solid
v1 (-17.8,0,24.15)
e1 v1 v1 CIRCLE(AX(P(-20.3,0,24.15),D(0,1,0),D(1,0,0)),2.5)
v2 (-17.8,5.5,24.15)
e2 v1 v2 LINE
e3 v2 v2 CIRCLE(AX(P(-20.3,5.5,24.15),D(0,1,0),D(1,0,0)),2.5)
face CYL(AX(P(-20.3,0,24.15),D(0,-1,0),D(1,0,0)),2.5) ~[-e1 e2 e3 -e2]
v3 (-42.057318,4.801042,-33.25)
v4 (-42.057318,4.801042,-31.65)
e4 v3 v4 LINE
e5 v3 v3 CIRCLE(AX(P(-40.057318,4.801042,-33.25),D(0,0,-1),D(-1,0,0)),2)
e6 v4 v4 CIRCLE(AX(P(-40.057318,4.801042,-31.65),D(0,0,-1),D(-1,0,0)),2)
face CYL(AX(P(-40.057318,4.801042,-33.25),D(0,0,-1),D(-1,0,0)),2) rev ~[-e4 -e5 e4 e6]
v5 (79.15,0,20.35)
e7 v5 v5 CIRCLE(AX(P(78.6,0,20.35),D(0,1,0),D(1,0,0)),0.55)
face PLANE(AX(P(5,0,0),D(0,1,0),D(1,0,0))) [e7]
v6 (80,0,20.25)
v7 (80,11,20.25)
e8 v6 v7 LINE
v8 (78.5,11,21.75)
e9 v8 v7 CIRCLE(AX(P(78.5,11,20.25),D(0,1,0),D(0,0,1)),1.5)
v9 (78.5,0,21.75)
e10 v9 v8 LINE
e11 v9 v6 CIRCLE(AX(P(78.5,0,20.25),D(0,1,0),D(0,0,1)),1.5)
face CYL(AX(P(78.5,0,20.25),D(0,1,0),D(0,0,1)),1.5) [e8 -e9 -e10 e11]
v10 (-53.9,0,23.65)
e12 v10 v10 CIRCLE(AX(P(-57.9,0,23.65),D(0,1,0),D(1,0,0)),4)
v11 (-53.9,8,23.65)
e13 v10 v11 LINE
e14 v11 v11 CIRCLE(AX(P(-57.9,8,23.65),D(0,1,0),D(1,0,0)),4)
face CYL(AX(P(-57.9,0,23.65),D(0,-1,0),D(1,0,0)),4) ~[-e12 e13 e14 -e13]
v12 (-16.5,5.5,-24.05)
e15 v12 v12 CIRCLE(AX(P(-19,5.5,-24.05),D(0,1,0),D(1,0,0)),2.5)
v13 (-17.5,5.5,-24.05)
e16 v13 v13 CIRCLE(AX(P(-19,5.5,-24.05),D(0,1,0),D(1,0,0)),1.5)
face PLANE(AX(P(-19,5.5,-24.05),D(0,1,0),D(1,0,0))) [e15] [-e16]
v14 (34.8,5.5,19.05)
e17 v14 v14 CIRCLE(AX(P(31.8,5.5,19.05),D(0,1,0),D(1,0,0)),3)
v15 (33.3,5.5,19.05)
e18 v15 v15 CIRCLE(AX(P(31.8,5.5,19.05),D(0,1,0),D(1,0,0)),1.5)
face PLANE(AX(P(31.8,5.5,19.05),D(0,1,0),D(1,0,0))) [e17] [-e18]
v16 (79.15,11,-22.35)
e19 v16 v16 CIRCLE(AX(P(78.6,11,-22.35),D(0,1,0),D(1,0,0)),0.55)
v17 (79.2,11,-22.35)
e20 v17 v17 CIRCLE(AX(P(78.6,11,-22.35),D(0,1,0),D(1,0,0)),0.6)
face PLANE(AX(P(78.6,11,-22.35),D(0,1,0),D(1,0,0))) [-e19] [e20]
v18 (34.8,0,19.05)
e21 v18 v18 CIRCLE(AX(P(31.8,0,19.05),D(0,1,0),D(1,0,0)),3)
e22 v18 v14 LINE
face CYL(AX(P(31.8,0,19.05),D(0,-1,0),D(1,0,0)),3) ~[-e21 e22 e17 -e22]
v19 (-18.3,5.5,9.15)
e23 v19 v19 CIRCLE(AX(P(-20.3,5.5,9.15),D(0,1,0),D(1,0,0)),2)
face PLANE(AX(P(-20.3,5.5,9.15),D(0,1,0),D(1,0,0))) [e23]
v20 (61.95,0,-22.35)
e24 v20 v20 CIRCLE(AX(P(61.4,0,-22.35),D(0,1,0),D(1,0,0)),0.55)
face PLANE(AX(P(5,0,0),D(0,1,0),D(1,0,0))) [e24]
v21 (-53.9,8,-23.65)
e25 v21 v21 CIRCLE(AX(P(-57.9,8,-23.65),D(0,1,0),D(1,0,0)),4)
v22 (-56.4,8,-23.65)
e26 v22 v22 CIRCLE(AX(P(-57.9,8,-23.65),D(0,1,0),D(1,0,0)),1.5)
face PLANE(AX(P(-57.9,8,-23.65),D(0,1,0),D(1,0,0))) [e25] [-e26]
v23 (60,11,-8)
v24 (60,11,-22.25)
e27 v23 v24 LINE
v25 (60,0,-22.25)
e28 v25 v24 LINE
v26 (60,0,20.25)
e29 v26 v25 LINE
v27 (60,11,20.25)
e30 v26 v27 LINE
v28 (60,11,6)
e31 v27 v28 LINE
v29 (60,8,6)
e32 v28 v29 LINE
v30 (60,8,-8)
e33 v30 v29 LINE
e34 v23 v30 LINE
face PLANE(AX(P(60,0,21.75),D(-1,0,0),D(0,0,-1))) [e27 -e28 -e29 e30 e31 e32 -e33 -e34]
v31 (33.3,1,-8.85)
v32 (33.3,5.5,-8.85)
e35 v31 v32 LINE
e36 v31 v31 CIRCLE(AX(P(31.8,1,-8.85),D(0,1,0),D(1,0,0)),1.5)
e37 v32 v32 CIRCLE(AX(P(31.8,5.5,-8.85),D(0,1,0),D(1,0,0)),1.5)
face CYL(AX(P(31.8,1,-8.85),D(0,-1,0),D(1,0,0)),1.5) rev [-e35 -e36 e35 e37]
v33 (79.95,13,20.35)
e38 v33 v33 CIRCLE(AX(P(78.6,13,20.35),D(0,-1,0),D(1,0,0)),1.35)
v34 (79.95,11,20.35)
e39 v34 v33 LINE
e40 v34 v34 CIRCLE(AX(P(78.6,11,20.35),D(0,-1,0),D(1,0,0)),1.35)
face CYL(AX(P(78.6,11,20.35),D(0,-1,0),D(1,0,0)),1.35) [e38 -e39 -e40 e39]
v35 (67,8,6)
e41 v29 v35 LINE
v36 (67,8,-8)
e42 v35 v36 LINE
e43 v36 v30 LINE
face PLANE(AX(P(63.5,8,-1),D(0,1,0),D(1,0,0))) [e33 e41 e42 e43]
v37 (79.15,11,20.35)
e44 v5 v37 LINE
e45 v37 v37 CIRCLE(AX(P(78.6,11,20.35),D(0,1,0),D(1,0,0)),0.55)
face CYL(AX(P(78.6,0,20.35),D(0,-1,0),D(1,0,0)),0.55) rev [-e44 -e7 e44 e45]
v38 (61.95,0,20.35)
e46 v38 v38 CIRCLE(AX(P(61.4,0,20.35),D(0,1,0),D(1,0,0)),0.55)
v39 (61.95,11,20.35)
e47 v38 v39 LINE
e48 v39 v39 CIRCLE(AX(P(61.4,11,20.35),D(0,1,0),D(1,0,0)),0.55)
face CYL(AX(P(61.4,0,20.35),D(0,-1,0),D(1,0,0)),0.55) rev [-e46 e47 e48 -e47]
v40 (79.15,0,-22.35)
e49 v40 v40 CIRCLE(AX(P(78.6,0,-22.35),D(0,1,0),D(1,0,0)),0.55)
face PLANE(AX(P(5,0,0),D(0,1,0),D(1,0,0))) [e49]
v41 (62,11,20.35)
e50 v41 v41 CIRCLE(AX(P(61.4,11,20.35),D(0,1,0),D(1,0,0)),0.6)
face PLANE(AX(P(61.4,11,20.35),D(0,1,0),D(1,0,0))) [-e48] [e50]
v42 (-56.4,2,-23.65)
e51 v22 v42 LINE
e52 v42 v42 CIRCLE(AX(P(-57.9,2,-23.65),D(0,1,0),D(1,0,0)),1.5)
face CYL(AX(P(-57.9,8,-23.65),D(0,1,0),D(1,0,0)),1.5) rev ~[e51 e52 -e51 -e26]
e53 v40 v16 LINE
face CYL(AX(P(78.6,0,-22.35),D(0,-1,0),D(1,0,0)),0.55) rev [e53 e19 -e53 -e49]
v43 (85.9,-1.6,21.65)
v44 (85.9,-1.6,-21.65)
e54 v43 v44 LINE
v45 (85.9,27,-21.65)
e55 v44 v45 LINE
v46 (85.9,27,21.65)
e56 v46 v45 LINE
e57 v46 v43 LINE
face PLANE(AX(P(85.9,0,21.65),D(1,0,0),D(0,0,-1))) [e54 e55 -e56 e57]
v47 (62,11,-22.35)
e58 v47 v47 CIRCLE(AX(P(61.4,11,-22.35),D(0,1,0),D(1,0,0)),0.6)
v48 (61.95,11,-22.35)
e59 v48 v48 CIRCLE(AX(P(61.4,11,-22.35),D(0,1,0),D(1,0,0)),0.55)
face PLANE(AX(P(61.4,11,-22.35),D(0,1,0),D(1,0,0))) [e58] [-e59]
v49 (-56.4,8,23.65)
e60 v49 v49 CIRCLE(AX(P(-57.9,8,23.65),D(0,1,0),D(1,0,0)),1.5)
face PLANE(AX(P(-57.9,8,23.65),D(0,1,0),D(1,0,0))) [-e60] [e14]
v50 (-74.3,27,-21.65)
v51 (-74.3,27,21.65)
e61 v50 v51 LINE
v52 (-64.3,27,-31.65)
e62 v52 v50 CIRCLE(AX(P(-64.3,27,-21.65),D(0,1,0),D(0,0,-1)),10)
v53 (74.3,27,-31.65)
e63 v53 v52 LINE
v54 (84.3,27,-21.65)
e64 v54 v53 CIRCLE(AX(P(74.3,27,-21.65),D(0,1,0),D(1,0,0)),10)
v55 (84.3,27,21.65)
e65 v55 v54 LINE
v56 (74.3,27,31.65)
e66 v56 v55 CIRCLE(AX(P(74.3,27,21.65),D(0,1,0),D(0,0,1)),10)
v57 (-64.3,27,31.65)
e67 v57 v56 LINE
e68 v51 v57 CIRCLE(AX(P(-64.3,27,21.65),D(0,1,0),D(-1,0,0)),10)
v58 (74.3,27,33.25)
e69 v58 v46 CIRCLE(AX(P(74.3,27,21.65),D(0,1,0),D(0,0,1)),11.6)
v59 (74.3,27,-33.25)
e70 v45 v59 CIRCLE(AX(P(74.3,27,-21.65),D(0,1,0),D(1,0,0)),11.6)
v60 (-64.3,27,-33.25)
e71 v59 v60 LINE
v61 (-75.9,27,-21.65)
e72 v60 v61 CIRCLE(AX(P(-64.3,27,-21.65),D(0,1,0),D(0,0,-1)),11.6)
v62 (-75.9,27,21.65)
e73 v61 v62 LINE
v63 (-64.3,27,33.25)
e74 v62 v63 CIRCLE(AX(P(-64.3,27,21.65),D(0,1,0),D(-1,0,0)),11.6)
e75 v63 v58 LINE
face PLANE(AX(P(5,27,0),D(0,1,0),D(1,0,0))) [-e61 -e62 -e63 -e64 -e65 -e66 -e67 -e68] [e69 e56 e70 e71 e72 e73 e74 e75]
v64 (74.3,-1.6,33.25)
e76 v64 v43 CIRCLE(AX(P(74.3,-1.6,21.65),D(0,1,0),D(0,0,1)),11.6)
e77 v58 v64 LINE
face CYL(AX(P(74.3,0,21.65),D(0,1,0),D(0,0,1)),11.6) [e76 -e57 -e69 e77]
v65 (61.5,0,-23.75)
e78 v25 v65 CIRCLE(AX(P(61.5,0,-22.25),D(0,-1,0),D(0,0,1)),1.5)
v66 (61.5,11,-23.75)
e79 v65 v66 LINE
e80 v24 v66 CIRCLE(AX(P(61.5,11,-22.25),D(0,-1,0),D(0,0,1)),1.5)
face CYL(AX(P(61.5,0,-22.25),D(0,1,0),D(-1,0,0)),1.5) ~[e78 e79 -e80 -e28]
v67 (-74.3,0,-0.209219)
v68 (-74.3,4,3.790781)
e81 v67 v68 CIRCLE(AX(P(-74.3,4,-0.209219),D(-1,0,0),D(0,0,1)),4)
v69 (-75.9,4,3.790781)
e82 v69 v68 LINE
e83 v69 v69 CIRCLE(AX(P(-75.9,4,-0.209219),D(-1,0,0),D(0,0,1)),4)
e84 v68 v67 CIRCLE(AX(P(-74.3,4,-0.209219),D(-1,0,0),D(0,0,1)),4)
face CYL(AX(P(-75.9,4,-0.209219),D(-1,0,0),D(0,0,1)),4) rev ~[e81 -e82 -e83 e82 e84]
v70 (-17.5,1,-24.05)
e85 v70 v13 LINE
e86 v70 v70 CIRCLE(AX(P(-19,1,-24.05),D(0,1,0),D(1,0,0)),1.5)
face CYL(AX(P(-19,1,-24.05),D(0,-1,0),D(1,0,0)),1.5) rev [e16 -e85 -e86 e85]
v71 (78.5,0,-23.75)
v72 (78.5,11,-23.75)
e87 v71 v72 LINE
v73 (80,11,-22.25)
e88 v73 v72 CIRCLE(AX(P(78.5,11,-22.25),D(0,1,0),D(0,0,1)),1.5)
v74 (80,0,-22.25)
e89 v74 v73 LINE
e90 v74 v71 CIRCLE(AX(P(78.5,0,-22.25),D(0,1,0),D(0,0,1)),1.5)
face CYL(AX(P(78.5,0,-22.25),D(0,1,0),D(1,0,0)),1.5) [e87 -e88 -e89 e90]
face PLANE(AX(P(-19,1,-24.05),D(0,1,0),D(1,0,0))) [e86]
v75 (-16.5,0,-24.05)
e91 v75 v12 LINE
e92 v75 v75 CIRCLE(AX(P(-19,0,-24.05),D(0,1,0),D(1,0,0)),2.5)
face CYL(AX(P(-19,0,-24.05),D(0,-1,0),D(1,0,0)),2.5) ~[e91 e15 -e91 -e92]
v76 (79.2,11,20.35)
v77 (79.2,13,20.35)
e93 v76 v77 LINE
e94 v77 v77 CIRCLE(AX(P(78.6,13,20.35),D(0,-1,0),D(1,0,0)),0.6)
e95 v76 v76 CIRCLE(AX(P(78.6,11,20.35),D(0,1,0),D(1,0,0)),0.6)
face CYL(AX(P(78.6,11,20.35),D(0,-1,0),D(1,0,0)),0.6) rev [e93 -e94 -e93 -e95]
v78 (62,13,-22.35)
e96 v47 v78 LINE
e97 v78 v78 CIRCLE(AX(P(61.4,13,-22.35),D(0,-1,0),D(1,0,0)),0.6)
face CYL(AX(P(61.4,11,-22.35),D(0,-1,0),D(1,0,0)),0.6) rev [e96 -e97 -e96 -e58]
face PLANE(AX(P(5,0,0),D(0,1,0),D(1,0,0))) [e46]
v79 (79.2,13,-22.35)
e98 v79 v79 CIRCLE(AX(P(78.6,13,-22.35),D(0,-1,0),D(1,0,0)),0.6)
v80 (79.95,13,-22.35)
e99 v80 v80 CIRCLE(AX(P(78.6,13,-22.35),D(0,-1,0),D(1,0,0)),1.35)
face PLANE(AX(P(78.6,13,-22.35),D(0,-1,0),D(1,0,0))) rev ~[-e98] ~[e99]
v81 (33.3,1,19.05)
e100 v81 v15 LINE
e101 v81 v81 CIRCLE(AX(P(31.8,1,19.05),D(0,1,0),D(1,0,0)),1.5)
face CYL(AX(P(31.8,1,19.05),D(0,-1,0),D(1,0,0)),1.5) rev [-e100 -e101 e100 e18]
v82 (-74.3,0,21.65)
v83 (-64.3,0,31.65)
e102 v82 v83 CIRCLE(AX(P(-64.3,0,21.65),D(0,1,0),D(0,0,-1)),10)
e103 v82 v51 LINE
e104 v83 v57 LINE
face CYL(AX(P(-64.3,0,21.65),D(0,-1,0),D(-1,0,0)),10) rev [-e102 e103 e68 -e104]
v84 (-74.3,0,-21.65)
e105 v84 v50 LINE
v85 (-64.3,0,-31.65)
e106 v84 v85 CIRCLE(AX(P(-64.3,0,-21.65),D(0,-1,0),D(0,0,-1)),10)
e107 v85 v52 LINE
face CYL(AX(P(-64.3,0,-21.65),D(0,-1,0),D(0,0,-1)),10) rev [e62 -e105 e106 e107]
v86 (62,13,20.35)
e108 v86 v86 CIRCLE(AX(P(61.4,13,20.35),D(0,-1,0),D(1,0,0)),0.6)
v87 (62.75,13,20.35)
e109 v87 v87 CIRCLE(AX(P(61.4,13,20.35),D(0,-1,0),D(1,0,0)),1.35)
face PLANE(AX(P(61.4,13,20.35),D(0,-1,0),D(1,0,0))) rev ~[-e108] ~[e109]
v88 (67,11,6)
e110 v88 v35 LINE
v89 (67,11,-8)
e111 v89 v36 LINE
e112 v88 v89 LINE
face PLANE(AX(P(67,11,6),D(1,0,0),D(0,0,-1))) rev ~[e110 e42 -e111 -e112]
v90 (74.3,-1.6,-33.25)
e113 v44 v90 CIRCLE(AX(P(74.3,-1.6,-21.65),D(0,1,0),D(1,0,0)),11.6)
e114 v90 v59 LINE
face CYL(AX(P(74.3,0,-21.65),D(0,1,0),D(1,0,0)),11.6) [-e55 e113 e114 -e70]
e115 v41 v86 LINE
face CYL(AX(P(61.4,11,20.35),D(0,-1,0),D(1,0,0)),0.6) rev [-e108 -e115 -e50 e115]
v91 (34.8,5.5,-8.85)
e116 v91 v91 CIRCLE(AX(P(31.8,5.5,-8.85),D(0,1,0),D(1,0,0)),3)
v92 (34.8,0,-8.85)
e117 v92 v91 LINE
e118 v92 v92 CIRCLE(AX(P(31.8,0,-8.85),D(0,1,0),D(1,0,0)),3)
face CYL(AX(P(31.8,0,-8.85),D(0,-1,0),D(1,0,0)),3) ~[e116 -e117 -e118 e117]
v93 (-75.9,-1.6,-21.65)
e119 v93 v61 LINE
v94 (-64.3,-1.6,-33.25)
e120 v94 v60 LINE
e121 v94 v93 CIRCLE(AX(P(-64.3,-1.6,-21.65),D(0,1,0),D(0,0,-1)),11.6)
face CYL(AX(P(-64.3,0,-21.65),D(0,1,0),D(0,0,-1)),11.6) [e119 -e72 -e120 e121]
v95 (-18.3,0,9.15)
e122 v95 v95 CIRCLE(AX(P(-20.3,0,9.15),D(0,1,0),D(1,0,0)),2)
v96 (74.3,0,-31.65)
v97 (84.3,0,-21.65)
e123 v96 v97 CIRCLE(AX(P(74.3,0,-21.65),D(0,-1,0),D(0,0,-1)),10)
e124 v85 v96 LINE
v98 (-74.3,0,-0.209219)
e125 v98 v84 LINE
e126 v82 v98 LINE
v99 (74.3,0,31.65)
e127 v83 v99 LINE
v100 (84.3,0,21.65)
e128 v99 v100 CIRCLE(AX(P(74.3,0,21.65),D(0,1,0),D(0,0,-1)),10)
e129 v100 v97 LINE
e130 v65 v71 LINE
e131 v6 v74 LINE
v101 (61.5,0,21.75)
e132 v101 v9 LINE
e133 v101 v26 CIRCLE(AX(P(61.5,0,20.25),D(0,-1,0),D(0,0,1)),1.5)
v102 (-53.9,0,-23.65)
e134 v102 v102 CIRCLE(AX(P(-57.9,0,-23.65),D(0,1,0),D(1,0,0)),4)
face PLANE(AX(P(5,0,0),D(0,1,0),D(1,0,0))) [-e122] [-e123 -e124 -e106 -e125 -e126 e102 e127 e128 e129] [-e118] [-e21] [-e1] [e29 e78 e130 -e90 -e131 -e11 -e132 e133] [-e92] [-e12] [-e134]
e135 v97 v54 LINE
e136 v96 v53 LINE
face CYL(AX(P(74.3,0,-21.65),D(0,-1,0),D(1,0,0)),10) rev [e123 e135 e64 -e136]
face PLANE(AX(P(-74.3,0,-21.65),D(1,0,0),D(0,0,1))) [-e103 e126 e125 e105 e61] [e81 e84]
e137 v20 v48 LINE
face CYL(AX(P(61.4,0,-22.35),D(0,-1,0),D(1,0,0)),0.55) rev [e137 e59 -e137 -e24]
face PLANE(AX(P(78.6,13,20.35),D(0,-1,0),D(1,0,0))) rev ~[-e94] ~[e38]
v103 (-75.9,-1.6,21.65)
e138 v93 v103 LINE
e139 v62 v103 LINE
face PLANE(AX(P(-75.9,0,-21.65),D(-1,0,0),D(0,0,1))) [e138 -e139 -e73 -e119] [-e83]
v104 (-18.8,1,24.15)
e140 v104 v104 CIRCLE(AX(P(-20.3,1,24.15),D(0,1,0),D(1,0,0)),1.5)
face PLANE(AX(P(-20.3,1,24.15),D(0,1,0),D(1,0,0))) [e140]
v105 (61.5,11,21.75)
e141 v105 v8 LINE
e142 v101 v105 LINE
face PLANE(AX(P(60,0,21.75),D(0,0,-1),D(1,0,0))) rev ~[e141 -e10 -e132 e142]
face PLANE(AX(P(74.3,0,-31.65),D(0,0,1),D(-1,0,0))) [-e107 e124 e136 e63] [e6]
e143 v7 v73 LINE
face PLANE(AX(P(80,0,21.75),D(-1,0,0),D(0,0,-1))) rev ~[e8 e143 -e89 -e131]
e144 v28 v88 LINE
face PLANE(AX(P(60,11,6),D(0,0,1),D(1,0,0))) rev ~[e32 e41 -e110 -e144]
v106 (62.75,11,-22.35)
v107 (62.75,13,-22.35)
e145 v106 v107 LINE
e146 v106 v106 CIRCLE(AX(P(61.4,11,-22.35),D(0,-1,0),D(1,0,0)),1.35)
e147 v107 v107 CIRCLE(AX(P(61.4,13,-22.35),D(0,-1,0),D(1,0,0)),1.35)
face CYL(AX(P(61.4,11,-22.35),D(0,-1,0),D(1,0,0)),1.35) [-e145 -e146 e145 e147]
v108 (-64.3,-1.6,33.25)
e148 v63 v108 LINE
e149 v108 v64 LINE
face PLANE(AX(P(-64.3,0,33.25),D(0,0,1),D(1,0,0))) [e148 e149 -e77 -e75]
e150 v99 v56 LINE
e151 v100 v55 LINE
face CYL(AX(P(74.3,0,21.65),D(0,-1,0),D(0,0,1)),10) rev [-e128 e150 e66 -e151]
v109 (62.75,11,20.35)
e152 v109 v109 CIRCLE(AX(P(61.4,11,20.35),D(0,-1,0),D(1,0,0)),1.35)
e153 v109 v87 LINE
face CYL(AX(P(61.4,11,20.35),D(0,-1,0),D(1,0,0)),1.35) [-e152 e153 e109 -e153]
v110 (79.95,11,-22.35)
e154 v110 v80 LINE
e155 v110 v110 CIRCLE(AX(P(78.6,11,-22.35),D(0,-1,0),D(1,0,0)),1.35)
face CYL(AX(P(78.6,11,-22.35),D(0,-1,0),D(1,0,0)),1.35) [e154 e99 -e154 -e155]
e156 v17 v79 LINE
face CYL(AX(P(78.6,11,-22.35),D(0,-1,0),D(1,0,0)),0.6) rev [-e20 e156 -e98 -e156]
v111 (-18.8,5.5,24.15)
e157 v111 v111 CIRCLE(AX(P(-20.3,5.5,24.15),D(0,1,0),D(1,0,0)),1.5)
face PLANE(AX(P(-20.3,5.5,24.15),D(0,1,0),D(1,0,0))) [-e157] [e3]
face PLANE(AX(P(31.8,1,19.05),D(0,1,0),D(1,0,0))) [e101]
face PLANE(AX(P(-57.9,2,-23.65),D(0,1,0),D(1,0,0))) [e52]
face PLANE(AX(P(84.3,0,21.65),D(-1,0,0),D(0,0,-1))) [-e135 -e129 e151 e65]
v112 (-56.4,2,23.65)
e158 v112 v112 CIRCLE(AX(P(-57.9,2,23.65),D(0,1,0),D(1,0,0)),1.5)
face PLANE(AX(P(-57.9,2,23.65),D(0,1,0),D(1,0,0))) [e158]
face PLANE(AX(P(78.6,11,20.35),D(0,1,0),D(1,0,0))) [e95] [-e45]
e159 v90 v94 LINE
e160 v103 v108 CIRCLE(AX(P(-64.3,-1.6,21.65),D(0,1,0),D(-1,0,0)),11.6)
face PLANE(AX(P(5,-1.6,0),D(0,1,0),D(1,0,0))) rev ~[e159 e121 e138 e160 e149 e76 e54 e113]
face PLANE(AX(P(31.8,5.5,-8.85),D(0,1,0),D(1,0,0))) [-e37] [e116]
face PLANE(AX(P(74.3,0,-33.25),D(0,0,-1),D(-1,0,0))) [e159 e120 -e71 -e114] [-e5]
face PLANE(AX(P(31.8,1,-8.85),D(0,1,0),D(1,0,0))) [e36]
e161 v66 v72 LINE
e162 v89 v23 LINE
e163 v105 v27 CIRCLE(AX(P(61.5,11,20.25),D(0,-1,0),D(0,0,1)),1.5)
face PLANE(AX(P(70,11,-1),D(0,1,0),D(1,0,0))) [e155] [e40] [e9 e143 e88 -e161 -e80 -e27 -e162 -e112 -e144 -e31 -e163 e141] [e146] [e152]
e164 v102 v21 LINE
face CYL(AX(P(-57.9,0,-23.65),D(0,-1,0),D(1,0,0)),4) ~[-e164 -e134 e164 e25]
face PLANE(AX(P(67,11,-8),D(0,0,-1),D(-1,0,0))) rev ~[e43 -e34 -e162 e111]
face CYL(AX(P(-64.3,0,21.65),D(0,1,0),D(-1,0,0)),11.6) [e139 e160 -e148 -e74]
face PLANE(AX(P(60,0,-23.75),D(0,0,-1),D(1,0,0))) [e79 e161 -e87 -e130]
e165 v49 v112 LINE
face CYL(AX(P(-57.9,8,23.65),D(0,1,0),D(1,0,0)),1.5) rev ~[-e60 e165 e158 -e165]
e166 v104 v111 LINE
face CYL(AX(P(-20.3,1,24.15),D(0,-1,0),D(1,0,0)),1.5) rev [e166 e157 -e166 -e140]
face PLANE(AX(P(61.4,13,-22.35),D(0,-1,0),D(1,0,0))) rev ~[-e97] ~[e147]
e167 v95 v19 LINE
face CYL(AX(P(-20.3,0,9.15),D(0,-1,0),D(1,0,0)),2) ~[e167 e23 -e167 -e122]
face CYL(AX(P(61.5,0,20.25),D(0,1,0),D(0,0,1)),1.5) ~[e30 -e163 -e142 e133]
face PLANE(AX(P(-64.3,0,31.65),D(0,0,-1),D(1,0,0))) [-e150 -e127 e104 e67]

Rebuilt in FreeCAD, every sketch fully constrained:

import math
import FreeCAD as App
import Part
import Sketcher
Q = App.Units.Quantity


def edges_at(feature, points):
    """Names of the edges that pass closest to the given points."""
    edges = feature.Shape.Edges
    near = lambda p: min(range(len(edges)), key=lambda i: edges[i].distToShape(Part.Vertex(*p))[0])
    return sorted({f"Edge{near(p) + 1}" for p in points})


def add_polygon(sketch, points):
    """Adds a closed chain of lines whose ends are joined by coincident constraints."""
    first, n = sketch.GeometryCount, len(points)
    for a, b in zip(points, points[1:] + points[:1]):
        sketch.addGeometry(Part.LineSegment(App.Vector(*a, 0), App.Vector(*b, 0)), False)
    for i in range(n):
        sketch.addConstraint(Sketcher.Constraint("Coincident", first + i, 2, first + (i + 1) % n, 1))

doc = App.newDocument("Part")
body = doc.addObject("PartDesign::Body", "Body")

# Sketch on XZ plane
sketch1 = doc.addObject("Sketcher::SketchObject", "Sketch")
body.addObject(sketch1)
sketch1.AttachmentSupport = (doc.XZ_Plane, [""])
sketch1.MapMode = "FlatFace"
add_polygon(sketch1, [(60, -23.8), (60, 21.8), (80, 21.8), (80, -23.8)])  # lines 0-3
sketch1.addGeometry(Part.Circle(App.Vector(61.4, 20.4, 0), App.Vector(0, 0, 1), 0.6), False)  # 4
sketch1.addGeometry(Part.Circle(App.Vector(78.6, 20.4, 0), App.Vector(0, 0, 1), 0.6), False)  # 5
sketch1.addGeometry(Part.Circle(App.Vector(61.4, -22.4, 0), App.Vector(0, 0, 1), 0.6), False)  # 6
sketch1.addGeometry(Part.Circle(App.Vector(78.6, -22.4, 0), App.Vector(0, 0, 1), 0.6), False)  # 7
sketch1.addConstraint(Sketcher.Constraint("Vertical", 0))
sketch1.addConstraint(Sketcher.Constraint("Horizontal", 1))
sketch1.addConstraint(Sketcher.Constraint("Vertical", 2))
sketch1.addConstraint(Sketcher.Constraint("Horizontal", 3))
sketch1.addConstraint(Sketcher.Constraint("Equal", 4, 5))
sketch1.addConstraint(Sketcher.Constraint("Equal", 5, 6))
sketch1.addConstraint(Sketcher.Constraint("Equal", 6, 7))
sketch1.addConstraint(Sketcher.Constraint("Horizontal", 4, 3, 5, 3))
sketch1.addConstraint(Sketcher.Constraint("Horizontal", 6, 3, 7, 3))
sketch1.addConstraint(Sketcher.Constraint("Vertical", 4, 3, 6, 3))
sketch1.addConstraint(Sketcher.Constraint("Vertical", 5, 3, 7, 3))
sketch1.addConstraint(Sketcher.Constraint("Diameter", 4, Q("1.1 mm")))
sketch1.addConstraint(Sketcher.Constraint("DistanceX", 1, 1, 1, 2, Q("20 mm")))
sketch1.addConstraint(Sketcher.Constraint("DistanceY", 0, 1, 0, 2, Q("45.5 mm")))
sketch1.addConstraint(Sketcher.Constraint("DistanceX", -1, 1, 0, 2, Q("60 mm")))
sketch1.addConstraint(Sketcher.Constraint("DistanceX", -1, 1, 4, 3, Q("61.4 mm")))
sketch1.addConstraint(Sketcher.Constraint("DistanceX", -1, 1, 5, 3, Q("78.6 mm")))
sketch1.addConstraint(Sketcher.Constraint("DistanceY", 6, 3, 4, 3, Q("42.7 mm")))
sketch1.addConstraint(Sketcher.Constraint("DistanceY", 4, 3, 0, 2, Q("1.4 mm")))
sketch1.addConstraint(Sketcher.Constraint("DistanceY", -1, 1, 4, 3, Q("20.35 mm")))
pad1 = doc.addObject("PartDesign::Pad", "Pad")
body.addObject(pad1)
pad1.Profile = sketch1
pad1.Length = 11
pad1.Reversed = True

# Sketch on XZ plane
sketch2 = doc.addObject("Sketcher::SketchObject", "Sketch001")
body.addObject(sketch2)
sketch2.AttachmentSupport = (doc.XZ_Plane, [""])
sketch2.MapMode = "FlatFace"
sketch2.AttachmentOffset = App.Placement(App.Vector(0, 0, -11), App.Rotation())
add_polygon(sketch2, [(60, 6), (67, 6), (67, -8), (60, -8)])  # lines 0-3
sketch2.addConstraint(Sketcher.Constraint("Horizontal", 0))
sketch2.addConstraint(Sketcher.Constraint("Vertical", 1))
sketch2.addConstraint(Sketcher.Constraint("Horizontal", 2))
sketch2.addConstraint(Sketcher.Constraint("Vertical", 3))
sketch2.addConstraint(Sketcher.Constraint("DistanceX", 0, 1, 0, 2, Q("7 mm")))
sketch2.addConstraint(Sketcher.Constraint("DistanceY", 1, 2, 1, 1, Q("14 mm")))
sketch2.addConstraint(Sketcher.Constraint("DistanceX", -1, 1, 0, 2, Q("67 mm")))
sketch2.addConstraint(Sketcher.Constraint("DistanceY", -1, 1, 0, 2, Q("6 mm")))
pocket1 = doc.addObject("PartDesign::Pocket", "Pocket")
body.addObject(pocket1)
pocket1.Profile = sketch2
pocket1.Length = 3
pocket1.Reversed = True

# Sketch on XZ plane
sketch3 = doc.addObject("Sketcher::SketchObject", "Sketch002")
body.addObject(sketch3)
sketch3.AttachmentSupport = (doc.XZ_Plane, [""])
sketch3.MapMode = "FlatFace"
sketch3.AttachmentOffset = App.Placement(App.Vector(0, 0, -11), App.Rotation())
sketch3.addGeometry(Part.Circle(App.Vector(61.4, 20.4, 0), App.Vector(0, 0, 1), 1.4), False)
sketch3.addGeometry(Part.Circle(App.Vector(78.6, 20.4, 0), App.Vector(0, 0, 1), 1.4), False)
sketch3.addGeometry(Part.Circle(App.Vector(61.4, -22.4, 0), App.Vector(0, 0, 1), 1.4), False)
sketch3.addGeometry(Part.Circle(App.Vector(78.6, -22.4, 0), App.Vector(0, 0, 1), 1.4), False)
sketch3.addConstraint(Sketcher.Constraint("Equal", 0, 1))
sketch3.addConstraint(Sketcher.Constraint("Equal", 1, 2))
sketch3.addConstraint(Sketcher.Constraint("Equal", 2, 3))
sketch3.addConstraint(Sketcher.Constraint("Horizontal", 0, 3, 1, 3))
sketch3.addConstraint(Sketcher.Constraint("Horizontal", 2, 3, 3, 3))
sketch3.addConstraint(Sketcher.Constraint("Vertical", 0, 3, 2, 3))
sketch3.addConstraint(Sketcher.Constraint("Vertical", 1, 3, 3, 3))
sketch3.addConstraint(Sketcher.Constraint("Diameter", 0, Q("2.7 mm")))
sketch3.addConstraint(Sketcher.Constraint("DistanceX", -1, 1, 0, 3, Q("61.4 mm")))
sketch3.addConstraint(Sketcher.Constraint("DistanceX", -1, 1, 1, 3, Q("78.6 mm")))
sketch3.addConstraint(Sketcher.Constraint("DistanceY", 2, 3, 0, 3, Q("42.7 mm")))
sketch3.addConstraint(Sketcher.Constraint("DistanceY", -1, 1, 0, 3, Q("20.35 mm")))
pad2 = doc.addObject("PartDesign::Pad", "Pad001")
body.addObject(pad2)
pad2.Profile = sketch3
pad2.Length = 2
pad2.Reversed = True

# Sketch on XZ plane
sketch4 = doc.addObject("Sketcher::SketchObject", "Sketch003")
body.addObject(sketch4)
sketch4.AttachmentSupport = (doc.XZ_Plane, [""])
sketch4.MapMode = "FlatFace"
add_polygon(sketch4, [(-74, -32), (-74, 32), (84, 32), (84, -32)])  # lines 0-3
sketch4.addConstraint(Sketcher.Constraint("Vertical", 0))
sketch4.addConstraint(Sketcher.Constraint("Horizontal", 1))
sketch4.addConstraint(Sketcher.Constraint("Vertical", 2))
sketch4.addConstraint(Sketcher.Constraint("Horizontal", 3))
sketch4.addConstraint(Sketcher.Constraint("DistanceX", 1, 1, 1, 2, Q("158.6 mm")))
sketch4.addConstraint(Sketcher.Constraint("DistanceY", 0, 1, 0, 2, Q("63.3 mm")))
sketch4.addConstraint(Sketcher.Constraint("DistanceX", 0, 2, -1, 1, Q("74.3 mm")))
sketch4.addConstraint(Sketcher.Constraint("DistanceY", -1, 1, 0, 2, Q("31.65 mm")))
pad3 = doc.addObject("PartDesign::Pad", "Pad002")
body.addObject(pad3)
pad3.Profile = sketch4
pad3.Length = 1.6
doc.recompute()

fillet = doc.addObject("PartDesign::Fillet", "Fillet")
body.addObject(fillet)
fillet.Base = (pad3, edges_at(pad3, [
    (-74.3, -0.8, -31.65),
    (84.3, -0.8, -31.65),
    (84.3, -0.8, 31.65),
    (-74.3, -0.8, 31.65),
]))
fillet.Radius = 10

# Sketch on XZ plane
sketch5 = doc.addObject("Sketcher::SketchObject", "Sketch004")
body.addObject(sketch5)
sketch5.AttachmentSupport = (doc.XZ_Plane, [""])
sketch5.MapMode = "FlatFace"
sketch5.addGeometry(Part.Circle(App.Vector(-19, -24.1, 0), App.Vector(0, 0, 1), 2.5), False)
sketch5.addGeometry(Part.Circle(App.Vector(31.8, -8.8, 0), App.Vector(0, 0, 1), 3), False)
sketch5.addGeometry(Part.Circle(App.Vector(31.8, 19.1, 0), App.Vector(0, 0, 1), 3), False)
sketch5.addGeometry(Part.Circle(App.Vector(-20.3, 24.1, 0), App.Vector(0, 0, 1), 2.5), False)
sketch5.addGeometry(Part.Circle(App.Vector(-20.3, 9.2, 0), App.Vector(0, 0, 1), 2), False)
sketch5.addConstraint(Sketcher.Constraint("Equal", 1, 2))
sketch5.addConstraint(Sketcher.Constraint("Equal", 0, 3))
sketch5.addConstraint(Sketcher.Constraint("Vertical", 1, 3, 2, 3))
sketch5.addConstraint(Sketcher.Constraint("Vertical", 3, 3, 4, 3))
sketch5.addConstraint(Sketcher.Constraint("Diameter", 0, Q("5 mm")))
sketch5.addConstraint(Sketcher.Constraint("Diameter", 1, Q("6 mm")))
sketch5.addConstraint(Sketcher.Constraint("Diameter", 4, Q("4 mm")))
sketch5.addConstraint(Sketcher.Constraint("DistanceX", 0, 3, -1, 1, Q("19 mm")))
sketch5.addConstraint(Sketcher.Constraint("DistanceY", 1, 3, 3, 3, Q("33 mm")))
sketch5.addConstraint(Sketcher.Constraint("DistanceY", 4, 3, 3, 3, Q("15 mm")))
sketch5.addConstraint(Sketcher.Constraint("DistanceX", -1, 1, 1, 3, Q("31.8 mm")))
sketch5.addConstraint(Sketcher.Constraint("DistanceX", 3, 3, -1, 1, Q("20.3 mm")))
sketch5.addConstraint(Sketcher.Constraint("DistanceY", 0, 3, 1, 3, Q("15.2 mm")))
sketch5.addConstraint(Sketcher.Constraint("DistanceY", 1, 3, 2, 3, Q("27.9 mm")))
sketch5.addConstraint(Sketcher.Constraint("DistanceY", 0, 3, -1, 1, Q("24.05 mm")))
pad4 = doc.addObject("PartDesign::Pad", "Pad003")
body.addObject(pad4)
pad4.Profile = sketch5
pad4.Length = 5.5
pad4.Reversed = True

# Sketch on XZ plane
sketch6 = doc.addObject("Sketcher::SketchObject", "Sketch005")
body.addObject(sketch6)
sketch6.AttachmentSupport = (doc.XZ_Plane, [""])
sketch6.MapMode = "FlatFace"
sketch6.AttachmentOffset = App.Placement(App.Vector(0, 0, -1), App.Rotation())
sketch6.addGeometry(Part.Circle(App.Vector(-19, -24.1, 0), App.Vector(0, 0, 1), 1.5), False)
sketch6.addGeometry(Part.Circle(App.Vector(31.8, -8.8, 0), App.Vector(0, 0, 1), 1.5), False)
sketch6.addGeometry(Part.Circle(App.Vector(31.8, 19.1, 0), App.Vector(0, 0, 1), 1.5), False)
sketch6.addGeometry(Part.Circle(App.Vector(-20.3, 24.1, 0), App.Vector(0, 0, 1), 1.5), False)
sketch6.addConstraint(Sketcher.Constraint("Equal", 0, 1))
sketch6.addConstraint(Sketcher.Constraint("Equal", 1, 2))
sketch6.addConstraint(Sketcher.Constraint("Equal", 2, 3))
sketch6.addConstraint(Sketcher.Constraint("Vertical", 1, 3, 2, 3))
sketch6.addConstraint(Sketcher.Constraint("Diameter", 0, Q("3 mm")))
sketch6.addConstraint(Sketcher.Constraint("DistanceX", 0, 3, -1, 1, Q("19 mm")))
sketch6.addConstraint(Sketcher.Constraint("DistanceY", 1, 3, 3, 3, Q("33 mm")))
sketch6.addConstraint(Sketcher.Constraint("DistanceX", -1, 1, 1, 3, Q("31.8 mm")))
sketch6.addConstraint(Sketcher.Constraint("DistanceX", 3, 3, -1, 1, Q("20.3 mm")))
sketch6.addConstraint(Sketcher.Constraint("DistanceY", 0, 3, 1, 3, Q("15.2 mm")))
sketch6.addConstraint(Sketcher.Constraint("DistanceY", 1, 3, 2, 3, Q("27.9 mm")))
sketch6.addConstraint(Sketcher.Constraint("DistanceY", 0, 3, -1, 1, Q("24.05 mm")))
pocket2 = doc.addObject("PartDesign::Pocket", "Pocket001")
body.addObject(pocket2)
pocket2.Profile = sketch6
pocket2.Length = 4.5

# Sketch on XZ plane
sketch7 = doc.addObject("Sketcher::SketchObject", "Sketch006")
body.addObject(sketch7)
sketch7.AttachmentSupport = (doc.XZ_Plane, [""])
sketch7.MapMode = "FlatFace"
sketch7.addGeometry(Part.LineSegment(App.Vector(86, 22, 0), App.Vector(86, -22, 0)), False)
sketch7.addGeometry(Part.ArcOfCircle(Part.Circle(App.Vector(74, -22, 0), App.Vector(0, 0, 1), 12), math.radians(-90), math.radians(0)), False)
sketch7.addGeometry(Part.LineSegment(App.Vector(74, -33, 0), App.Vector(-64, -33, 0)), False)
sketch7.addGeometry(Part.ArcOfCircle(Part.Circle(App.Vector(-64, -22, 0), App.Vector(0, 0, 1), 12), math.radians(180), math.radians(270)), False)
sketch7.addGeometry(Part.LineSegment(App.Vector(-76, -22, 0), App.Vector(-76, 22, 0)), False)
sketch7.addGeometry(Part.ArcOfCircle(Part.Circle(App.Vector(-64, 22, 0), App.Vector(0, 0, 1), 12), math.radians(90), math.radians(180)), False)
sketch7.addGeometry(Part.LineSegment(App.Vector(-64, 33, 0), App.Vector(74, 33, 0)), False)
sketch7.addGeometry(Part.ArcOfCircle(Part.Circle(App.Vector(74, 22, 0), App.Vector(0, 0, 1), 12), math.radians(0), math.radians(90)), False)
sketch7.addGeometry(Part.LineSegment(App.Vector(84, -22, 0), App.Vector(84, 22, 0)), False)
sketch7.addGeometry(Part.ArcOfCircle(Part.Circle(App.Vector(74, 22, 0), App.Vector(0, 0, 1), 10), math.radians(0), math.radians(90)), False)
sketch7.addGeometry(Part.LineSegment(App.Vector(74, 32, 0), App.Vector(-64, 32, 0)), False)
sketch7.addGeometry(Part.ArcOfCircle(Part.Circle(App.Vector(-64, 22, 0), App.Vector(0, 0, 1), 10), math.radians(90), math.radians(180)), False)
sketch7.addGeometry(Part.LineSegment(App.Vector(-74, 22, 0), App.Vector(-74, -22, 0)), False)
sketch7.addGeometry(Part.ArcOfCircle(Part.Circle(App.Vector(-64, -22, 0), App.Vector(0, 0, 1), 10), math.radians(180), math.radians(270)), False)
sketch7.addGeometry(Part.LineSegment(App.Vector(-64, -32, 0), App.Vector(74, -32, 0)), False)
sketch7.addGeometry(Part.ArcOfCircle(Part.Circle(App.Vector(74, -22, 0), App.Vector(0, 0, 1), 10), math.radians(-90), math.radians(0)), False)
sketch7.addConstraint(Sketcher.Constraint("Tangent", 0, 2, 1, 2))
sketch7.addConstraint(Sketcher.Constraint("Tangent", 1, 1, 2, 1))
sketch7.addConstraint(Sketcher.Constraint("Tangent", 2, 2, 3, 2))
sketch7.addConstraint(Sketcher.Constraint("Tangent", 3, 1, 4, 1))
sketch7.addConstraint(Sketcher.Constraint("Tangent", 4, 2, 5, 2))
sketch7.addConstraint(Sketcher.Constraint("Tangent", 5, 1, 6, 1))
sketch7.addConstraint(Sketcher.Constraint("Tangent", 6, 2, 7, 2))
sketch7.addConstraint(Sketcher.Constraint("Tangent", 7, 1, 0, 1))
sketch7.addConstraint(Sketcher.Constraint("Tangent", 8, 2, 9, 1))
sketch7.addConstraint(Sketcher.Constraint("Tangent", 9, 2, 10, 1))
sketch7.addConstraint(Sketcher.Constraint("Tangent", 10, 2, 11, 1))
sketch7.addConstraint(Sketcher.Constraint("Tangent", 11, 2, 12, 1))
sketch7.addConstraint(Sketcher.Constraint("Tangent", 12, 2, 13, 1))
sketch7.addConstraint(Sketcher.Constraint("Tangent", 13, 2, 14, 1))
sketch7.addConstraint(Sketcher.Constraint("Tangent", 14, 2, 15, 1))
sketch7.addConstraint(Sketcher.Constraint("Tangent", 15, 2, 8, 1))
sketch7.addConstraint(Sketcher.Constraint("Vertical", 0))
sketch7.addConstraint(Sketcher.Constraint("Horizontal", 2))
sketch7.addConstraint(Sketcher.Constraint("Vertical", 4))
sketch7.addConstraint(Sketcher.Constraint("Horizontal", 6))
sketch7.addConstraint(Sketcher.Constraint("Vertical", 8))
sketch7.addConstraint(Sketcher.Constraint("Horizontal", 10))
sketch7.addConstraint(Sketcher.Constraint("Vertical", 12))
sketch7.addConstraint(Sketcher.Constraint("Horizontal", 14))
sketch7.addConstraint(Sketcher.Constraint("Coincident", 9, 3, 7, 3))
sketch7.addConstraint(Sketcher.Constraint("Coincident", 11, 3, 5, 3))
sketch7.addConstraint(Sketcher.Constraint("Coincident", 13, 3, 3, 3))
sketch7.addConstraint(Sketcher.Constraint("Equal", 1, 3))
sketch7.addConstraint(Sketcher.Constraint("Equal", 3, 5))
sketch7.addConstraint(Sketcher.Constraint("Equal", 5, 7))
sketch7.addConstraint(Sketcher.Constraint("Equal", 13, 15))
sketch7.addConstraint(Sketcher.Constraint("Radius", 9, Q("10 mm")))
sketch7.addConstraint(Sketcher.Constraint("Radius", 1, Q("11.6 mm")))
sketch7.addConstraint(Sketcher.Constraint("DistanceX", 2, 2, 2, 1, Q("138.6 mm")))
sketch7.addConstraint(Sketcher.Constraint("DistanceY", 0, 2, 0, 1, Q("43.3 mm")))
sketch7.addConstraint(Sketcher.Constraint("DistanceX", -1, 1, 1, 3, Q("74.3 mm")))
sketch7.addConstraint(Sketcher.Constraint("DistanceY", 1, 3, -1, 1, Q("21.65 mm")))
pad5 = doc.addObject("PartDesign::Pad", "Pad004")
body.addObject(pad5)
pad5.Profile = sketch7
pad5.Type = "TwoLengths"
pad5.Length = 27
pad5.Length2 = 1.6
pad5.Reversed = True

# Sketch on YZ plane
sketch8 = doc.addObject("Sketcher::SketchObject", "Sketch007")
body.addObject(sketch8)
sketch8.AttachmentSupport = (doc.YZ_Plane, [""])
sketch8.MapMode = "FlatFace"
sketch8.AttachmentOffset = App.Placement(App.Vector(0, 0, -75.9), App.Rotation())
sketch8.addGeometry(Part.Circle(App.Vector(4, -0.2, 0), App.Vector(0, 0, 1), 4), False)
sketch8.addConstraint(Sketcher.Constraint("Diameter", 0, Q("8 mm")))
sketch8.addConstraint(Sketcher.Constraint("DistanceX", -1, 1, 0, 3, Q("4 mm")))
sketch8.addConstraint(Sketcher.Constraint("DistanceY", 0, 3, -1, 1, Q("0.209219 mm")))
pocket3 = doc.addObject("PartDesign::Pocket", "Pocket002")
body.addObject(pocket3)
pocket3.Profile = sketch8
pocket3.Length = 1.6
pocket3.Reversed = True

# Sketch on XZ plane
sketch9 = doc.addObject("Sketcher::SketchObject", "Sketch008")
body.addObject(sketch9)
sketch9.AttachmentSupport = (doc.XZ_Plane, [""])
sketch9.MapMode = "FlatFace"
sketch9.addGeometry(Part.Circle(App.Vector(-57.9, -23.6, 0), App.Vector(0, 0, 1), 4), False)
sketch9.addGeometry(Part.Circle(App.Vector(-57.9, 23.6, 0), App.Vector(0, 0, 1), 4), False)
sketch9.addConstraint(Sketcher.Constraint("Equal", 0, 1))
sketch9.addConstraint(Sketcher.Constraint("Symmetric", 0, 3, 1, 3, -1))
sketch9.addConstraint(Sketcher.Constraint("Diameter", 0, Q("8 mm")))
sketch9.addConstraint(Sketcher.Constraint("DistanceX", 0, 3, -1, 1, Q("57.9 mm")))
sketch9.addConstraint(Sketcher.Constraint("DistanceY", 0, 3, 1, 3, Q("47.3 mm")))
pad6 = doc.addObject("PartDesign::Pad", "Pad005")
body.addObject(pad6)
pad6.Profile = sketch9
pad6.Length = 8
pad6.Reversed = True

# Sketch on XZ plane
sketch10 = doc.addObject("Sketcher::SketchObject", "Sketch009")
body.addObject(sketch10)
sketch10.AttachmentSupport = (doc.XZ_Plane, [""])
sketch10.MapMode = "FlatFace"
sketch10.AttachmentOffset = App.Placement(App.Vector(0, 0, -8), App.Rotation())
sketch10.addGeometry(Part.Circle(App.Vector(-57.9, -23.6, 0), App.Vector(0, 0, 1), 1.5), False)
sketch10.addGeometry(Part.Circle(App.Vector(-57.9, 23.6, 0), App.Vector(0, 0, 1), 1.5), False)
sketch10.addConstraint(Sketcher.Constraint("Equal", 0, 1))
sketch10.addConstraint(Sketcher.Constraint("Symmetric", 0, 3, 1, 3, -1))
sketch10.addConstraint(Sketcher.Constraint("Diameter", 0, Q("3 mm")))
sketch10.addConstraint(Sketcher.Constraint("DistanceX", 0, 3, -1, 1, Q("57.9 mm")))
sketch10.addConstraint(Sketcher.Constraint("DistanceY", 0, 3, 1, 3, Q("47.3 mm")))
pocket4 = doc.addObject("PartDesign::Pocket", "Pocket003")
body.addObject(pocket4)
pocket4.Profile = sketch10
pocket4.Length = 6
pocket4.Reversed = True

# Sketch on XY plane
sketch11 = doc.addObject("Sketcher::SketchObject", "Sketch010")
body.addObject(sketch11)
sketch11.AttachmentSupport = (doc.XY_Plane, [""])
sketch11.MapMode = "FlatFace"
sketch11.AttachmentOffset = App.Placement(App.Vector(0, 0, -33.25), App.Rotation())
sketch11.addGeometry(Part.Circle(App.Vector(-40.1, 4.8, 0), App.Vector(0, 0, 1), 2), False)
sketch11.addConstraint(Sketcher.Constraint("Diameter", 0, Q("4 mm")))
sketch11.addConstraint(Sketcher.Constraint("DistanceX", 0, 3, -1, 1, Q("40.057318 mm")))
sketch11.addConstraint(Sketcher.Constraint("DistanceY", -1, 1, 0, 3, Q("4.801042 mm")))
pocket5 = doc.addObject("PartDesign::Pocket", "Pocket004")
body.addObject(pocket5)
pocket5.Profile = sketch11
pocket5.Length = 1.6
pocket5.Reversed = True
doc.recompute()

fillet2 = doc.addObject("PartDesign::Fillet", "Fillet001")
body.addObject(fillet2)
fillet2.Base = (pocket5, edges_at(pocket5, [
    (80, 5.5, 21.75),
    (60, 5.5, 21.75),
    (60, 5.5, -23.75),
    (80, 5.5, -23.75),
]))
fillet2.Radius = 1.5

# Sketch on XZ plane
sketch12 = doc.addObject("Sketcher::SketchObject", "Sketch011")
body.addObject(sketch12)
sketch12.AttachmentSupport = (doc.XZ_Plane, [""])
sketch12.MapMode = "FlatFace"
sketch12.AttachmentOffset = App.Placement(App.Vector(0, 0, -11), App.Rotation())
sketch12.addGeometry(Part.Circle(App.Vector(61.4, -22.4, 0), App.Vector(0, 0, 1), 0.6), False)
sketch12.addGeometry(Part.Circle(App.Vector(78.6, -22.4, 0), App.Vector(0, 0, 1), 0.6), False)
sketch12.addGeometry(Part.Circle(App.Vector(78.6, 20.4, 0), App.Vector(0, 0, 1), 0.6), False)
sketch12.addGeometry(Part.Circle(App.Vector(61.4, 20.4, 0), App.Vector(0, 0, 1), 0.6), False)
sketch12.addConstraint(Sketcher.Constraint("Equal", 0, 1))
sketch12.addConstraint(Sketcher.Constraint("Equal", 1, 2))
sketch12.addConstraint(Sketcher.Constraint("Equal", 2, 3))
sketch12.addConstraint(Sketcher.Constraint("Horizontal", 0, 3, 1, 3))
sketch12.addConstraint(Sketcher.Constraint("Horizontal", 2, 3, 3, 3))
sketch12.addConstraint(Sketcher.Constraint("Vertical", 1, 3, 2, 3))
sketch12.addConstraint(Sketcher.Constraint("Vertical", 0, 3, 3, 3))
sketch12.addConstraint(Sketcher.Constraint("Diameter", 0, Q("1.2 mm")))
sketch12.addConstraint(Sketcher.Constraint("DistanceX", -1, 1, 0, 3, Q("61.4 mm")))
sketch12.addConstraint(Sketcher.Constraint("DistanceX", -1, 1, 1, 3, Q("78.6 mm")))
sketch12.addConstraint(Sketcher.Constraint("DistanceY", 1, 3, 2, 3, Q("42.7 mm")))
sketch12.addConstraint(Sketcher.Constraint("DistanceY", 0, 3, -1, 1, Q("22.35 mm")))
pocket6 = doc.addObject("PartDesign::Pocket", "Pocket005")
body.addObject(pocket6)
pocket6.Profile = sketch12
pocket6.Length = 10

doc.recompute()
